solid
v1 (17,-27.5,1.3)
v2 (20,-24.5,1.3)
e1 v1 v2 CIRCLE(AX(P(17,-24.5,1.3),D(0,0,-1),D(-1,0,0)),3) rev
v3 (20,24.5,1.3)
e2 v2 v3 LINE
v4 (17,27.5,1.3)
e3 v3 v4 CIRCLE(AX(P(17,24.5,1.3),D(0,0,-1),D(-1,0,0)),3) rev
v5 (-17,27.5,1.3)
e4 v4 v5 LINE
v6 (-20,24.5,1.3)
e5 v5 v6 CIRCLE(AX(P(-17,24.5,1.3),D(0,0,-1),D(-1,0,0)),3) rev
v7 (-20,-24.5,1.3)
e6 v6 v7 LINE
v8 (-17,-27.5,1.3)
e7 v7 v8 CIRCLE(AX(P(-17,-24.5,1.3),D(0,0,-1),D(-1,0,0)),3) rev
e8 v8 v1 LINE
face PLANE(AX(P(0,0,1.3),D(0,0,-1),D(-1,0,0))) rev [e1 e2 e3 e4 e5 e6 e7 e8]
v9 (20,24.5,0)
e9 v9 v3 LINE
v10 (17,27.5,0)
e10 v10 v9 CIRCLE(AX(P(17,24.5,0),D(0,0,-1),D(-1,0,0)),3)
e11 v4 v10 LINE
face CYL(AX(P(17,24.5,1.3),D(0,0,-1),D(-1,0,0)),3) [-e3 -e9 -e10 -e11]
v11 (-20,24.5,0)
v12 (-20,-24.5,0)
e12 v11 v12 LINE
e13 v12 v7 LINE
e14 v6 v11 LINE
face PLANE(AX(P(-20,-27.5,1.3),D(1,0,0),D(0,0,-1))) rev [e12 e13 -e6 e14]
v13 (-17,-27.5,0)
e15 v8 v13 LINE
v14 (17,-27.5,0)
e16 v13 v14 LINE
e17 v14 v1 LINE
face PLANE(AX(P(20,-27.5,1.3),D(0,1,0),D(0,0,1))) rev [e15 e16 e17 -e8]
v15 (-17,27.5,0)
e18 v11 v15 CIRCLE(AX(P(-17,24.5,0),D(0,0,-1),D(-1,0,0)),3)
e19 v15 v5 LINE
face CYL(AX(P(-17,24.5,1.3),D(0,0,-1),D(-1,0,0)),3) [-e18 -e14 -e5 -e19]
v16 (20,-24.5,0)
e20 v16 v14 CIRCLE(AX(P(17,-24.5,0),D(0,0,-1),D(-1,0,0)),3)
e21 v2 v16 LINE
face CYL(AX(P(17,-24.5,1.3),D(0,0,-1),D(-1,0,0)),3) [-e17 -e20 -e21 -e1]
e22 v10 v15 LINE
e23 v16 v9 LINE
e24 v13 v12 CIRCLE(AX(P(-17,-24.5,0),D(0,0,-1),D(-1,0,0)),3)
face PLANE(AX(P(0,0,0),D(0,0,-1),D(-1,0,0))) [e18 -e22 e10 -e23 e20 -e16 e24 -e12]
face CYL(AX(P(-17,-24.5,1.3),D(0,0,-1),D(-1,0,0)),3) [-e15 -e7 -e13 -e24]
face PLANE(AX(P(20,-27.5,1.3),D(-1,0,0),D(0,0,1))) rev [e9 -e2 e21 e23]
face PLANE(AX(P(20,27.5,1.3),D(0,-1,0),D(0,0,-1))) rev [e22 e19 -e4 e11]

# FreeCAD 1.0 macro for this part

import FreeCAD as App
import Part
import Sketcher
Q = App.Units.Quantity


def edges_at(feature, points):
    """Names of the edges that pass closest to the given points."""
    edges = feature.Shape.Edges
    near = lambda p: min(range(len(edges)), key=lambda i: edges[i].distToShape(Part.Vertex(*p))[0])
    return sorted({f"Edge{near(p) + 1}" for p in points})

doc = App.newDocument("Part")
body = doc.addObject("PartDesign::Body", "Body")

# Sketch on XY plane
sketch1 = body.newObject("Sketcher::SketchObject", "Sketch")
sketch1.AttachmentSupport = (doc.getObject("XY_Plane"), [""])
sketch1.MapMode = "FlatFace"
sketch1.addGeometry(Part.LineSegment(App.Vector(-20, -27.5, 0), App.Vector(20, -27.5, 0)), False)
sketch1.addGeometry(Part.LineSegment(App.Vector(20, -27.5, 0), App.Vector(20, 27.5, 0)), False)
sketch1.addGeometry(Part.LineSegment(App.Vector(20, 27.5, 0), App.Vector(-20, 27.5, 0)), False)
sketch1.addGeometry(Part.LineSegment(App.Vector(-20, 27.5, 0), App.Vector(-20, -27.5, 0)), False)
sketch1.addConstraint(Sketcher.Constraint("Coincident", 0, 2, 1, 1))
sketch1.addConstraint(Sketcher.Constraint("Coincident", 1, 2, 2, 1))
sketch1.addConstraint(Sketcher.Constraint("Coincident", 2, 2, 3, 1))
sketch1.addConstraint(Sketcher.Constraint("Coincident", 3, 2, 0, 1))
sketch1.addConstraint(Sketcher.Constraint("Horizontal", 0))
sketch1.addConstraint(Sketcher.Constraint("Vertical", 1))
sketch1.addConstraint(Sketcher.Constraint("Horizontal", 2))
sketch1.addConstraint(Sketcher.Constraint("Vertical", 3))
sketch1.addConstraint(Sketcher.Constraint("Symmetric", 0, 2, 2, 2, -1, 1))
sketch1.addConstraint(Sketcher.Constraint("DistanceX", 0, 1, 0, 2, Q("40 mm")))
sketch1.addConstraint(Sketcher.Constraint("DistanceY", 1, 1, 1, 2, Q("55 mm")))
pad1 = body.newObject("PartDesign::Pad", "Pad")
pad1.Profile = sketch1
pad1.Length = 1.3
doc.recompute()

fillet = body.newObject("PartDesign::Fillet", "Fillet")
fillet.Base = (pad1, edges_at(pad1, [
    (20, 27.5, 0.65),
    (20, -27.5, 0.65),
    (-20, -27.5, 0.65),
    (-20, 27.5, 0.65),
]))
fillet.Radius = 3

doc.recompute()
